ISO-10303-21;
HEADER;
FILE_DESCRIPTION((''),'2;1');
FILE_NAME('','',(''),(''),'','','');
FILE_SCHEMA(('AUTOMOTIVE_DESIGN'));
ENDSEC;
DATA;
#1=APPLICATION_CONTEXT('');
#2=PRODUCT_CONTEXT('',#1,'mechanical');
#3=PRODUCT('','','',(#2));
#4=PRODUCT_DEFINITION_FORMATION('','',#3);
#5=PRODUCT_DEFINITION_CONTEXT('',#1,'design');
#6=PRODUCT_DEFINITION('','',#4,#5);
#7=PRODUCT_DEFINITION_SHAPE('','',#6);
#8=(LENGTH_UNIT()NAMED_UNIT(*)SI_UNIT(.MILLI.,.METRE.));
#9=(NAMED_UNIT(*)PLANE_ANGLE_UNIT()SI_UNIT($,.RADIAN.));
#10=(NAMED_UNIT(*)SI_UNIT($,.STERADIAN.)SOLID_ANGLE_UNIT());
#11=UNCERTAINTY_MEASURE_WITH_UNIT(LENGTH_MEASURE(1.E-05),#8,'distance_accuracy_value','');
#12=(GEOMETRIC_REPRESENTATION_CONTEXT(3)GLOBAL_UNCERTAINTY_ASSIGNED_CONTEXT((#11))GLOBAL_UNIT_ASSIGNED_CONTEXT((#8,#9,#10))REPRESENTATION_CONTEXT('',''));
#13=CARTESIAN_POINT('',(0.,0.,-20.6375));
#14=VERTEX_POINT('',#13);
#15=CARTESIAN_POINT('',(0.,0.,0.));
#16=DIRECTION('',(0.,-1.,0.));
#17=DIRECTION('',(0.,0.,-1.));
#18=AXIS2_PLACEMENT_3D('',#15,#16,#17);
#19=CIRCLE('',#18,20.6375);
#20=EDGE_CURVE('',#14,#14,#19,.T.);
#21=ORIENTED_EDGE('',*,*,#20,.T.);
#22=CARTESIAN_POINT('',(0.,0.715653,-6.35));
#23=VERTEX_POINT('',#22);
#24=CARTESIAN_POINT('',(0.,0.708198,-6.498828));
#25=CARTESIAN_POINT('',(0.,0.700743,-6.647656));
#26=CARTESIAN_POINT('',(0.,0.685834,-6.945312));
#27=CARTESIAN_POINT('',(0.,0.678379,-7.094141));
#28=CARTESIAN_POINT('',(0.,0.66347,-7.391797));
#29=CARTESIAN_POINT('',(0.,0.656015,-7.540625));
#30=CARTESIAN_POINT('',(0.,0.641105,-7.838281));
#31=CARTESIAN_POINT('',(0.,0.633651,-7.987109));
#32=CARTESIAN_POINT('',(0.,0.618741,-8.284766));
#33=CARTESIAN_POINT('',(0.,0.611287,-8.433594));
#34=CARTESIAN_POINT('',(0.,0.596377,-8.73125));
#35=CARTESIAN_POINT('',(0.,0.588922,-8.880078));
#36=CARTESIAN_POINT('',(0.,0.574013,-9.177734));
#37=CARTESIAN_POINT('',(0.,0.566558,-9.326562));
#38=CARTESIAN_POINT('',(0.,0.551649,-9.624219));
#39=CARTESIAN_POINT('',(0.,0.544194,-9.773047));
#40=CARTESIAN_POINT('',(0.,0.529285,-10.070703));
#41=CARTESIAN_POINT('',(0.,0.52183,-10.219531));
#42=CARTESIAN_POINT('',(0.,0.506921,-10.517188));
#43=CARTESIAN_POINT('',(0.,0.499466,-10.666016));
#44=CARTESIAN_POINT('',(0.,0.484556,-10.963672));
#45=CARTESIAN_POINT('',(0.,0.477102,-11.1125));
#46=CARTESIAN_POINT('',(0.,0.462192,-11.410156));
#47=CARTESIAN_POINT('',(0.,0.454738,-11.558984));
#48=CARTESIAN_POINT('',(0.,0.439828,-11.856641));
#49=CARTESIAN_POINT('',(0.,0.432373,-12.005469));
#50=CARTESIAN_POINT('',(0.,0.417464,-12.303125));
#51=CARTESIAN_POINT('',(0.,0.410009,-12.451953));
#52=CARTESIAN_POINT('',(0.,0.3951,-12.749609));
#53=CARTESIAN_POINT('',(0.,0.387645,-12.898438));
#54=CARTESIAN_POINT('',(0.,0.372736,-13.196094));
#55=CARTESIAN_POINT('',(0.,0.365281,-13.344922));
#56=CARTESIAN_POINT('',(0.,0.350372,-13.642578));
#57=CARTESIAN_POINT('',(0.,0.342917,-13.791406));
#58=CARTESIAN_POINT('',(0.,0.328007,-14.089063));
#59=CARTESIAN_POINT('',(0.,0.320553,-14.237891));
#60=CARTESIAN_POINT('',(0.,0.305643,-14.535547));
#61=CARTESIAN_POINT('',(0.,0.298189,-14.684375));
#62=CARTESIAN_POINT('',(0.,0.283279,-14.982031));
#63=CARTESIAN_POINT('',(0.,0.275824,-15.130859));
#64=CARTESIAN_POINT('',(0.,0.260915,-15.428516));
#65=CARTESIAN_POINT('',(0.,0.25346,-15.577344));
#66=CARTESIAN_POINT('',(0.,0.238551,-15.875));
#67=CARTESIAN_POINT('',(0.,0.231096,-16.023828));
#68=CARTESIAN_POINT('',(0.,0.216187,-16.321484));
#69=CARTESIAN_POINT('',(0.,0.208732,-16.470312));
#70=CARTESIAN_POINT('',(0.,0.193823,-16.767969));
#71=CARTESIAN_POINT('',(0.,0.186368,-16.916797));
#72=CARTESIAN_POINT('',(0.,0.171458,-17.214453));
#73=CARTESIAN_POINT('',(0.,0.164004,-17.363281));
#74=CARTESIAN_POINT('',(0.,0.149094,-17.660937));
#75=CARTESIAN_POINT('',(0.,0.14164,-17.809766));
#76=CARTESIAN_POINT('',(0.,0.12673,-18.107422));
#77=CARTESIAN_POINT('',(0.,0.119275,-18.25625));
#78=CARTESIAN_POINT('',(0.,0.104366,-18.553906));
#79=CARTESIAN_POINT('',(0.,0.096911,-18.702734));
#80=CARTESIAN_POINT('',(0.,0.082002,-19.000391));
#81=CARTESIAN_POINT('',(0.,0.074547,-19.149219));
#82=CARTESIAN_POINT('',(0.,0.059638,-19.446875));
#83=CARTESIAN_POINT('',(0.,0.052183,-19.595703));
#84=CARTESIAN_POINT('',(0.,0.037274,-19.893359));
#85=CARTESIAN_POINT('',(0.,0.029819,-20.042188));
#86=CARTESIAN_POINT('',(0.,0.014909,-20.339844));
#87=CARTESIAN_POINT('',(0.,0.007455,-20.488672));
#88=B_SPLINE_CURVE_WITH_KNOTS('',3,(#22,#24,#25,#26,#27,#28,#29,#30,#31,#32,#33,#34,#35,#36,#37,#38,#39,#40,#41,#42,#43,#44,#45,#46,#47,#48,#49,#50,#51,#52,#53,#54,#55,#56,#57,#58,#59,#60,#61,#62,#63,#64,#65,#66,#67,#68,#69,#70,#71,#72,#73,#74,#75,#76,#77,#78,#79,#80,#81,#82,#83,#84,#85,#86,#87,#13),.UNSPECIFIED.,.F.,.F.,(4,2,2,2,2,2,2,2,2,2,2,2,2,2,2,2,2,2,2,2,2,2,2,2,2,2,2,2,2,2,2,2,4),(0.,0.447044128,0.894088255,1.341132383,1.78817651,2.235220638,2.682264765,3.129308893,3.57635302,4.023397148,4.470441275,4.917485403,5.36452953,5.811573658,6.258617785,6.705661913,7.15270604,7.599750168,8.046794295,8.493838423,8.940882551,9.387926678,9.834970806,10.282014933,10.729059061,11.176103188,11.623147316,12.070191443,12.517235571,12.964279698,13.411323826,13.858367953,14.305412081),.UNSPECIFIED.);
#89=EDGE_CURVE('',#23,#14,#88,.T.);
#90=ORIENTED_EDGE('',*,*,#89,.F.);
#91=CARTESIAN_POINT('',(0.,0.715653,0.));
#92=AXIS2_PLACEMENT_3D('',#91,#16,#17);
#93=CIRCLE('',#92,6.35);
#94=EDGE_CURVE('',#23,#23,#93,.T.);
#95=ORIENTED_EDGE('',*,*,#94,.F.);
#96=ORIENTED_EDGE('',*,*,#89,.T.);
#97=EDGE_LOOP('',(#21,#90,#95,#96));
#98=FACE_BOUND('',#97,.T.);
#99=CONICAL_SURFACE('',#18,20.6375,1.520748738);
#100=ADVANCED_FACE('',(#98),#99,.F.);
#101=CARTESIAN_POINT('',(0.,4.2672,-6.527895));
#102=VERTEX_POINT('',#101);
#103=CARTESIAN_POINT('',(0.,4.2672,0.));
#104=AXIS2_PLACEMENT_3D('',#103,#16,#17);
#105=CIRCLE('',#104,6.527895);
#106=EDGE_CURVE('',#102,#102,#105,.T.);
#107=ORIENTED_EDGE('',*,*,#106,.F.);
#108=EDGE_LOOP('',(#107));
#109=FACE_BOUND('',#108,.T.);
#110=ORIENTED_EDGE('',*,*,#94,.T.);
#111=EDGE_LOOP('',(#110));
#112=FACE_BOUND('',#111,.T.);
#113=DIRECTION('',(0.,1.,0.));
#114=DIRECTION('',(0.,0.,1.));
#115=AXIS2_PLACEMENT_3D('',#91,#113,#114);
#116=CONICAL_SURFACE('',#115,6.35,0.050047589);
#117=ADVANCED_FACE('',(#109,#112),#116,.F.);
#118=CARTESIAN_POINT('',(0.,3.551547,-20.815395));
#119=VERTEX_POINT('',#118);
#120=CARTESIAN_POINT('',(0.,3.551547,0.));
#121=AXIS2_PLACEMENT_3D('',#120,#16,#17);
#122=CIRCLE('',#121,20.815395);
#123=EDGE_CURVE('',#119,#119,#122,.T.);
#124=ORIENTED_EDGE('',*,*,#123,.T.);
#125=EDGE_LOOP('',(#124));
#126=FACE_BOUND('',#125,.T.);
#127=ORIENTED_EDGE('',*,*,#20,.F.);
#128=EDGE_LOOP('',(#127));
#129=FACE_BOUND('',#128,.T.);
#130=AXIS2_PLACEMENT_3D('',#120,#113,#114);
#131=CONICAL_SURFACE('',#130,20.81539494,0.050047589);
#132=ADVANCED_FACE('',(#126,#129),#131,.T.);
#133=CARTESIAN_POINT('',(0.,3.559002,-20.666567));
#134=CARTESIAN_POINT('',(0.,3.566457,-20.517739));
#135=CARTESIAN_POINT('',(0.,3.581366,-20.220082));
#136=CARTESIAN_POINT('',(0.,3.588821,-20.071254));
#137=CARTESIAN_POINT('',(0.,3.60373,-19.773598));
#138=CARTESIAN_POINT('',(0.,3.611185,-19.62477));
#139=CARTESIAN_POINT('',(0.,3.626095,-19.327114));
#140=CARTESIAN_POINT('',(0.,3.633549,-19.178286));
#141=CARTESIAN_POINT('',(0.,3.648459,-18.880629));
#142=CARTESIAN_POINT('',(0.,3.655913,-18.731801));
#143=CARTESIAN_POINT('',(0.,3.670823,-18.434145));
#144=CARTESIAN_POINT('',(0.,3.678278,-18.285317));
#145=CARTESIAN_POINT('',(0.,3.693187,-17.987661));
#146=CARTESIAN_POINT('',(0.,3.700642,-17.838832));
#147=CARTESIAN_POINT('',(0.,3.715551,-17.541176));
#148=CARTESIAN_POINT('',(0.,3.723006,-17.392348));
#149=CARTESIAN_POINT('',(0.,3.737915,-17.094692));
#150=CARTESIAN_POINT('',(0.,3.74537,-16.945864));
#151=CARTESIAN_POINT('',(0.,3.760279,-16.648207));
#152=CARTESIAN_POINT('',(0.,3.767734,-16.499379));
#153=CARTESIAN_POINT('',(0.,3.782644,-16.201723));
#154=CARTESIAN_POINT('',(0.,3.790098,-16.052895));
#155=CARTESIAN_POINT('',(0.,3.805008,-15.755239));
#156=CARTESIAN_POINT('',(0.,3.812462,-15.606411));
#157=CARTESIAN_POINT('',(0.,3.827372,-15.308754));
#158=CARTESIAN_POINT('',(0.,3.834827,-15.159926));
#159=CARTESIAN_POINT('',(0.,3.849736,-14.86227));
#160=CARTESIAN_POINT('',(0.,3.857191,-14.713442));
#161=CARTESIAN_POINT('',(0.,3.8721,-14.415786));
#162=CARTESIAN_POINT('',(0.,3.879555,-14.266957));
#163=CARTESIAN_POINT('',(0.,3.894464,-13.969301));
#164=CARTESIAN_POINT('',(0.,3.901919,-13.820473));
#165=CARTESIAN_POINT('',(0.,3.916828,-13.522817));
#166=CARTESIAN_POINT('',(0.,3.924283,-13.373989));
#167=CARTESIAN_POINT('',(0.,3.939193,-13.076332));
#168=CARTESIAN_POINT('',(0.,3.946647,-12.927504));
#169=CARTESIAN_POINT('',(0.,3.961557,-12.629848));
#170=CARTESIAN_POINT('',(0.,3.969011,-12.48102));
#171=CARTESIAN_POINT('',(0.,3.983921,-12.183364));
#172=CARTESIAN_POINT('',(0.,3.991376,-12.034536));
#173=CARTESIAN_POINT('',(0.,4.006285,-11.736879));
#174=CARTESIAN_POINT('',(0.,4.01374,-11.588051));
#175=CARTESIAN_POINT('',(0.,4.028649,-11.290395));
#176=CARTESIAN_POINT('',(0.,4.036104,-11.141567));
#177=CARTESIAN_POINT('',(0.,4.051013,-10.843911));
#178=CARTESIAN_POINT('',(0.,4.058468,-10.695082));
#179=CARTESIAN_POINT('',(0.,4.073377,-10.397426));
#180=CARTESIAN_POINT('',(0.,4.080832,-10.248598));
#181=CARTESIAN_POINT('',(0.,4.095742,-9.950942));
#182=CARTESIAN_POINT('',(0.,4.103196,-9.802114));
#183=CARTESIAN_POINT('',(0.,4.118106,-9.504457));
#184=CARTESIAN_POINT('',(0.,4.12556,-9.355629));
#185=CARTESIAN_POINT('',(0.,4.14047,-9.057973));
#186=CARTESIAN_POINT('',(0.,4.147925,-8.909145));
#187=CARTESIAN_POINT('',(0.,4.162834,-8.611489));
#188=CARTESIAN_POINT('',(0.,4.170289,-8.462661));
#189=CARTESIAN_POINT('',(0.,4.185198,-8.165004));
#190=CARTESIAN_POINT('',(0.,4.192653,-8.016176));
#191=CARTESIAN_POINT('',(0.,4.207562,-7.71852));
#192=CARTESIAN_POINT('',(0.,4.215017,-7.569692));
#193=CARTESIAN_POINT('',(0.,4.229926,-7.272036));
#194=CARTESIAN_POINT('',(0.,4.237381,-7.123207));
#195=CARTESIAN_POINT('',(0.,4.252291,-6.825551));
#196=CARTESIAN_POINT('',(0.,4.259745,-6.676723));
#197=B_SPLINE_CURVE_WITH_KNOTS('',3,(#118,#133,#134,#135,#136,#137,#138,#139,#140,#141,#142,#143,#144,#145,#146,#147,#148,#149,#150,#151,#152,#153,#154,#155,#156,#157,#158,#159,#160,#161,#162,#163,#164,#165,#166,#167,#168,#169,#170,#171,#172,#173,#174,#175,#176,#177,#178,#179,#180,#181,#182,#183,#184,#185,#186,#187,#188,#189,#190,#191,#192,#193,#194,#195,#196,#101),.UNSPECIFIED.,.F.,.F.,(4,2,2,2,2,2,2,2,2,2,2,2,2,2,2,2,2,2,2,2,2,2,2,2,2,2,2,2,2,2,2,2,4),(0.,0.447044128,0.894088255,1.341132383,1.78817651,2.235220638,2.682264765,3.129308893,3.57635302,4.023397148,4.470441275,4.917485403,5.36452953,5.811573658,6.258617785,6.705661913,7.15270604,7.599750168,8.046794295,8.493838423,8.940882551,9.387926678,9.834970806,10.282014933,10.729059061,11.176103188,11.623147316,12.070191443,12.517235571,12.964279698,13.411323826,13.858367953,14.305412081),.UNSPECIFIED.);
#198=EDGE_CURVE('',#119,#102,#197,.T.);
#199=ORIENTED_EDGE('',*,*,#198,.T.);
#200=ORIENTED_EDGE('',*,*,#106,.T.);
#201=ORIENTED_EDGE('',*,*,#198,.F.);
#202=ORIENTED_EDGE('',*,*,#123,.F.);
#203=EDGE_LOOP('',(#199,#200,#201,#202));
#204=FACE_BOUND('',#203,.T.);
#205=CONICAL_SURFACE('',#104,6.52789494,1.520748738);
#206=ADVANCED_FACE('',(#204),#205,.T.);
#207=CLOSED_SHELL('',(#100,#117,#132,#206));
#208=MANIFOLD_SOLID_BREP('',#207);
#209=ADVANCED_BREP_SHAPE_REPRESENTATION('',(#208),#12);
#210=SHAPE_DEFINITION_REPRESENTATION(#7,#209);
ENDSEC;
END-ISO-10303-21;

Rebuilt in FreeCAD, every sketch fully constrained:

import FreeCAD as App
import Part
import Sketcher
from FreeCAD import Vector
Q = App.Units.Quantity

doc = App.newDocument("Part")
params = doc.addObject("Spreadsheet::Sheet", "Params")
for row, (alias, value) in enumerate([
    ("sketch1_length", "0.14 in"),
    ("revolution_angle", "360 deg"),
], start=1):
    params.set(f"A{row}", alias)
    params.set(f"B{row}", "=" + value)
    params.setAlias(f"B{row}", alias)

body = doc.addObject("PartDesign::Body", "Body")

sketch1 = doc.addObject("Sketcher::SketchObject", "Sketch")
body.addObject(sketch1)
sketch1.AttachmentSupport = (doc.YZ_Plane, [""])
sketch1.MapMode = "FlatFace"
sketch1.addGeometry(Part.LineSegment(Vector(0, 20.6, 0), Vector(0.7, 6.3, 0)), False)
sketch1.addGeometry(Part.LineSegment(Vector(0.7, 6.3, 0), Vector(4.3, 6.5, 0)), False)
sketch1.addGeometry(Part.LineSegment(Vector(4.3, 6.5, 0), Vector(3.6, 20.8, 0)), False)
sketch1.addGeometry(Part.LineSegment(Vector(3.6, 20.8, 0), Vector(0, 20.6, 0)), False)
sketch1.addConstraint(Sketcher.Constraint("Coincident", 0, 2, 1, 1))
sketch1.addConstraint(Sketcher.Constraint("Coincident", 1, 2, 2, 1))
sketch1.addConstraint(Sketcher.Constraint("Coincident", 2, 2, 3, 1))
sketch1.addConstraint(Sketcher.Constraint("Coincident", 3, 2, 0, 1))
sketch1.addConstraint(Sketcher.Constraint("PointOnObject", 3, 2, -2))
sketch1.addConstraint(Sketcher.Constraint("Perpendicular", 0, 1))
sketch1.addConstraint(Sketcher.Constraint("Perpendicular", 1, 2))
sketch1.addConstraint(Sketcher.Constraint("Perpendicular", 2, 3))
sketch1.addConstraint(Sketcher.Constraint("Distance", 1, Q("0.14 in")))
sketch1.addConstraint(Sketcher.Constraint("DistanceY", -1, 1, 0, 2, Q("0.25 in")))
sketch1.addConstraint(Sketcher.Constraint("DistanceX", -1, 1, 1, 2, Q("0.168 in")))
sketch1.addConstraint(Sketcher.Constraint("DistanceY", -1, 1, 3, 2, Q("0.8125 in")))
sketch1.setExpression("Constraints[8]", "Params.sketch1_length")
revolution = doc.addObject("PartDesign::Revolution", "Revolution")
body.addObject(revolution)
revolution.Profile = sketch1
revolution.ReferenceAxis = (sketch1, ["H_Axis"])
revolution.setExpression("Angle", "Params.revolution_angle")

doc.recompute()
